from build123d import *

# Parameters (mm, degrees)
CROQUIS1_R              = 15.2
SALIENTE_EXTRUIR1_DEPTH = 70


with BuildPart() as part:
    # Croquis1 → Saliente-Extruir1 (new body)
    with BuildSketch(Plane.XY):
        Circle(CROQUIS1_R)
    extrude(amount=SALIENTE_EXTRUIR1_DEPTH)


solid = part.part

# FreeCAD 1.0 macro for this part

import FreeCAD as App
import Part
import Sketcher

doc = App.newDocument("Part")
body = doc.addObject("PartDesign::Body", "Body")

# Sketch on XY plane
sketch1 = body.newObject("Sketcher::SketchObject", "Sketch")
sketch1.AttachmentSupport = (doc.getObject("XY_Plane"), [""])
sketch1.MapMode = "FlatFace"
sketch1.addGeometry(Part.Circle(App.Vector(0, 0, 0), App.Vector(0, 0, 1), 15), False)
sketch1.addConstraint([
    Sketcher.Constraint("Coincident", 0, 3, -1, 1),
    Sketcher.Constraint("Diameter", 0, 30.4),
])
pad1 = body.newObject("PartDesign::Pad", "Pad")
pad1.Profile = sketch1
pad1.Length = 70

doc.recompute()
